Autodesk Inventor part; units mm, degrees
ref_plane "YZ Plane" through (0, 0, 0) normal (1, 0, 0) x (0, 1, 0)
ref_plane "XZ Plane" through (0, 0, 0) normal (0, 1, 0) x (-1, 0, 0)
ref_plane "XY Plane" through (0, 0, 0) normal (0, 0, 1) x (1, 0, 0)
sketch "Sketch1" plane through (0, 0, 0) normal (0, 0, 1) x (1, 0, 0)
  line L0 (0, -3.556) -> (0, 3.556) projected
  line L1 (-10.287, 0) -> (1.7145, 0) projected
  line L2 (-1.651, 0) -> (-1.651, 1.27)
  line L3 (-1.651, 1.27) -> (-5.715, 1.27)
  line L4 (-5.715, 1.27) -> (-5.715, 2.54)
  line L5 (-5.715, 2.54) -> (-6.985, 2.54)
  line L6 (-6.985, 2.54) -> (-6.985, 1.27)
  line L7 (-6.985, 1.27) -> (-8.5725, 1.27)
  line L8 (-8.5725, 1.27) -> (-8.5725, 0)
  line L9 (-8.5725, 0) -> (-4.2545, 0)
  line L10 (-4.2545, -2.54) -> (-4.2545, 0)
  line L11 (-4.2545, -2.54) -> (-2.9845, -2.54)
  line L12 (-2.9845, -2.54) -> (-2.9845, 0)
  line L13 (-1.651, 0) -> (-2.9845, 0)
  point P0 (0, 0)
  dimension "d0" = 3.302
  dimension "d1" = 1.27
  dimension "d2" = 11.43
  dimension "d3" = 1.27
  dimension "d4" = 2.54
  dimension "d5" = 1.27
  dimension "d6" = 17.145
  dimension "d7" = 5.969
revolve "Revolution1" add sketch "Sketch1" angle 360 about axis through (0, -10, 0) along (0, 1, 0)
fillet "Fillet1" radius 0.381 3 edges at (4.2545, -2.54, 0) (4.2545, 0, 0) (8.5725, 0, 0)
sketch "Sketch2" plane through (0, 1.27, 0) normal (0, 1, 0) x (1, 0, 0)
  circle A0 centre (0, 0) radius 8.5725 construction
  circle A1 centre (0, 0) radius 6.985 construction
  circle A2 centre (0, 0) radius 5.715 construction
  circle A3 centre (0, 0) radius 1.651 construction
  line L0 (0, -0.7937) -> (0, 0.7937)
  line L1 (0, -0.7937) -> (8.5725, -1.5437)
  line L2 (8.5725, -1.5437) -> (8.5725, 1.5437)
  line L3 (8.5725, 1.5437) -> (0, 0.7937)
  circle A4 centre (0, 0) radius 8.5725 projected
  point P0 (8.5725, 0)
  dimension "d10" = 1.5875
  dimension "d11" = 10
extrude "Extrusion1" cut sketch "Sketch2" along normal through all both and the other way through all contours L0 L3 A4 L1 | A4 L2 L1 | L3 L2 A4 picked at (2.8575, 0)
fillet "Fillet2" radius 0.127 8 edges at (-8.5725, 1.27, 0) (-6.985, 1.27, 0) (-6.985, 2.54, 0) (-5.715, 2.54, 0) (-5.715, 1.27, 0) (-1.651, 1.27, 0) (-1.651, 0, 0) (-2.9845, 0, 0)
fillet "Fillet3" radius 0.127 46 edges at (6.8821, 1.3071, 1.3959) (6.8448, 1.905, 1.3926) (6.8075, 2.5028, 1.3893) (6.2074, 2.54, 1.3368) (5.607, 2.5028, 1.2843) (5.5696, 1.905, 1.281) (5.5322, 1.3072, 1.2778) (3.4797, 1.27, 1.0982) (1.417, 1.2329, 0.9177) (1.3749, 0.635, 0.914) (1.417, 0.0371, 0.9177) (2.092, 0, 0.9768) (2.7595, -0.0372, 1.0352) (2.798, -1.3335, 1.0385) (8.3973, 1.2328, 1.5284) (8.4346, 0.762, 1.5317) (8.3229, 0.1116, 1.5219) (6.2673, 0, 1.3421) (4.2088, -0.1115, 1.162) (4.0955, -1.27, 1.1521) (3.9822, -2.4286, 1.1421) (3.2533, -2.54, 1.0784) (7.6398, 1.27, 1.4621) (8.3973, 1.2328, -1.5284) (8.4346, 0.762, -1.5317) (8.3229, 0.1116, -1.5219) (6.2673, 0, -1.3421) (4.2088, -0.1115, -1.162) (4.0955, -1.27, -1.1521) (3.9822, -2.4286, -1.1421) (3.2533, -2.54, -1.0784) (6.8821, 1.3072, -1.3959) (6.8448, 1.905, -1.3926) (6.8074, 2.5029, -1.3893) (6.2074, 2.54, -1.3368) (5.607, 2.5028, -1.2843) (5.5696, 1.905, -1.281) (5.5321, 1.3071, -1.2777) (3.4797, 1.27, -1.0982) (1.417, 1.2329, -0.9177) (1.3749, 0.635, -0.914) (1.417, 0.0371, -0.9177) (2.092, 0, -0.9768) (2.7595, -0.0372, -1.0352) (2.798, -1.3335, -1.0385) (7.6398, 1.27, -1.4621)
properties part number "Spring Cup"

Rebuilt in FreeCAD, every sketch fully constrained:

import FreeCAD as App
import Part
import Sketcher

V = App.Vector
Q = App.Units.Quantity


def edges_at(feature, points):
    """Names of the edges that pass closest to the given points."""
    edges = feature.Shape.Edges
    near = lambda p: min(range(len(edges)), key=lambda i: edges[i].distToShape(Part.Vertex(*p))[0])
    return sorted({f"Edge{near(p) + 1}" for p in points})

doc = App.newDocument("Part")
body = doc.addObject("PartDesign::Body", "Body")

sketch1 = body.newObject("Sketcher::SketchObject", "Sketch")
sketch1.AttachmentSupport = (doc.getObject("XY_Plane"), [""])
sketch1.MapMode = "FlatFace"
sketch1.addGeometry(Part.LineSegment(V(-8.6, 1.3, 0), V(-8.6, 0, 0)), False)
sketch1.addGeometry(Part.LineSegment(V(-8.6, 0, 0), V(-4.3, 0, 0)), False)
sketch1.addGeometry(Part.LineSegment(V(-4.3, 0, 0), V(-4.3, -2.5, 0)), False)
sketch1.addGeometry(Part.LineSegment(V(-4.3, -2.5, 0), V(-3, -2.5, 0)), False)
sketch1.addGeometry(Part.LineSegment(V(-3, -2.5, 0), V(-3, 0, 0)), False)
sketch1.addGeometry(Part.LineSegment(V(-3, 0, 0), V(-1.7, 0, 0)), False)
sketch1.addGeometry(Part.LineSegment(V(-1.7, 0, 0), V(-1.7, 1.3, 0)), False)
sketch1.addGeometry(Part.LineSegment(V(-1.7, 1.3, 0), V(-5.7, 1.3, 0)), False)
sketch1.addGeometry(Part.LineSegment(V(-5.7, 1.3, 0), V(-5.7, 2.5, 0)), False)
sketch1.addGeometry(Part.LineSegment(V(-5.7, 2.5, 0), V(-7, 2.5, 0)), False)
sketch1.addGeometry(Part.LineSegment(V(-7, 2.5, 0), V(-7, 1.3, 0)), False)
sketch1.addGeometry(Part.LineSegment(V(-7, 1.3, 0), V(-8.6, 1.3, 0)), False)
sketch1.addConstraint(Sketcher.Constraint("Coincident", 0, 2, 1, 1))
sketch1.addConstraint(Sketcher.Constraint("Coincident", 1, 2, 2, 1))
sketch1.addConstraint(Sketcher.Constraint("Coincident", 2, 2, 3, 1))
sketch1.addConstraint(Sketcher.Constraint("Coincident", 3, 2, 4, 1))
sketch1.addConstraint(Sketcher.Constraint("Coincident", 4, 2, 5, 1))
sketch1.addConstraint(Sketcher.Constraint("Coincident", 5, 2, 6, 1))
sketch1.addConstraint(Sketcher.Constraint("Coincident", 6, 2, 7, 1))
sketch1.addConstraint(Sketcher.Constraint("Coincident", 7, 2, 8, 1))
sketch1.addConstraint(Sketcher.Constraint("Coincident", 8, 2, 9, 1))
sketch1.addConstraint(Sketcher.Constraint("Coincident", 9, 2, 10, 1))
sketch1.addConstraint(Sketcher.Constraint("Coincident", 10, 2, 11, 1))
sketch1.addConstraint(Sketcher.Constraint("Coincident", 11, 2, 0, 1))
sketch1.addConstraint(Sketcher.Constraint("Vertical", 0))
sketch1.addConstraint(Sketcher.Constraint("Horizontal", 1))
sketch1.addConstraint(Sketcher.Constraint("Vertical", 2))
sketch1.addConstraint(Sketcher.Constraint("Horizontal", 3))
sketch1.addConstraint(Sketcher.Constraint("Vertical", 4))
sketch1.addConstraint(Sketcher.Constraint("Horizontal", 5))
sketch1.addConstraint(Sketcher.Constraint("Vertical", 6))
sketch1.addConstraint(Sketcher.Constraint("Horizontal", 7))
sketch1.addConstraint(Sketcher.Constraint("Vertical", 8))
sketch1.addConstraint(Sketcher.Constraint("Horizontal", 9))
sketch1.addConstraint(Sketcher.Constraint("Vertical", 10))
sketch1.addConstraint(Sketcher.Constraint("Horizontal", 11))
sketch1.addConstraint(Sketcher.Constraint("PointOnObject", 0, 2, -1))
sketch1.addConstraint(Sketcher.Constraint("PointOnObject", 4, 2, -1))
sketch1.addConstraint(Sketcher.Constraint("Horizontal", 7, 2, 10, 2))
sketch1.addConstraint(Sketcher.Constraint("Equal", 3, 9))
sketch1.addConstraint(Sketcher.Constraint("Equal", 9, 0))
sketch1.addConstraint(Sketcher.Constraint("Equal", 6, 8))
sketch1.addConstraint(Sketcher.Constraint("DistanceY", 2, 2, 2, 1, Q("0.1 in")))
sketch1.addConstraint(Sketcher.Constraint("DistanceX", 3, 1, 3, 2, Q("0.05 in")))
sketch1.addConstraint(Sketcher.Constraint("DistanceX", 1, 1, 1, 2, Q("0.17 in")))
sketch1.addConstraint(Sketcher.Constraint("DistanceX", 7, 2, 7, 1, Q("0.16 in")))
sketch1.addConstraint(Sketcher.Constraint("DistanceX", 11, 2, 11, 1, Q("0.0625 in")))
sketch1.addConstraint(Sketcher.Constraint("DistanceX", 5, 2, -1, 1, Q("0.065 in")))
revolution = body.newObject("PartDesign::Revolution", "Revolution")
revolution.Profile = sketch1
revolution.ReferenceAxis = (sketch1, ["V_Axis"])
revolution.Angle = 360
doc.recompute()

fillet = body.newObject("PartDesign::Fillet", "Fillet")
fillet.Base = (revolution, edges_at(revolution, [(4.255, -2.54, 0), (4.255, 0, 0), (8.572, 0, 0)]))
fillet.Radius = Q("0.015 in")

sketch2 = body.newObject("Sketcher::SketchObject", "Sketch001")
sketch2.AttachmentSupport = (doc.getObject("XZ_Plane"), [""])
sketch2.MapMode = "FlatFace"
sketch2.AttachmentOffset = App.Placement(V(0, 0, -0.05 * 25.4), App.Rotation())
sketch2.addGeometry(Part.LineSegment(V(0, -0.8, 0), V(0, 0.8, 0)), False)
sketch2.addGeometry(Part.LineSegment(V(0, 0.8, 0), V(8.6, 1.5, 0)), False)
sketch2.addGeometry(Part.LineSegment(V(8.6, 1.5, 0), V(8.6, -1.5, 0)), False)
sketch2.addGeometry(Part.LineSegment(V(8.6, -1.5, 0), V(0, -0.8, 0)), False)
sketch2.addConstraint(Sketcher.Constraint("Coincident", 0, 2, 1, 1))
sketch2.addConstraint(Sketcher.Constraint("Coincident", 1, 2, 2, 1))
sketch2.addConstraint(Sketcher.Constraint("Coincident", 2, 2, 3, 1))
sketch2.addConstraint(Sketcher.Constraint("Coincident", 3, 2, 0, 1))
sketch2.addConstraint(Sketcher.Constraint("Vertical", 0))
sketch2.addConstraint(Sketcher.Constraint("Vertical", 2))
sketch2.addConstraint(Sketcher.Constraint("Symmetric", 0, 2, 3, 2, -1, 1))
sketch2.addConstraint(Sketcher.Constraint("Equal", 1, 3))
sketch2.addConstraint(Sketcher.Constraint("DistanceY", 0, 1, 0, 2, Q("0.0625 in")))
sketch2.addConstraint(Sketcher.Constraint("Angle", 1, Q("5 deg")))
sketch2.addConstraint(Sketcher.Constraint("Distance", 1, Q("0.3388 in")))
pocket1 = body.newObject("PartDesign::Pocket", "Pocket")
pocket1.Profile = sketch2
pocket1.Type = "ThroughAll"
pocket1.Midplane = True
doc.recompute()

fillet2 = body.newObject("PartDesign::Fillet", "Fillet001")
fillet2.Base = (pocket1, edges_at(pocket1, [
    (-8.572, 1.27, 0),
    (-6.985, 1.27, 0),
    (-6.985, 2.54, 0),
    (-5.715, 2.54, 0),
    (-5.715, 1.27, 0),
    (-1.651, 1.27, 0),
    (-1.651, 0, 0),
    (-2.985, 0, 0),
]))
fillet2.Radius = Q("0.005 in")
doc.recompute()

fillet3 = body.newObject("PartDesign::Fillet", "Fillet002")
fillet3.Base = (fillet2, edges_at(fillet2, [
    (6.882, 1.307, 1.396),
    (6.845, 1.905, 1.393),
    (6.808, 2.503, 1.389),
    (6.207, 2.54, 1.337),
    (5.607, 2.503, 1.284),
    (5.57, 1.905, 1.281),
    (5.532, 1.307, 1.278),
    (3.48, 1.27, 1.098),
    (1.417, 1.233, 0.918),
    (1.375, 0.635, 0.914),
    (1.417, 0.037, 0.918),
    (2.092, 0, 0.977),
    (2.76, -0.037, 1.035),
    (2.798, -1.333, 1.038),
    (8.397, 1.233, 1.528),
    (8.435, 0.762, 1.532),
    (8.323, 0.112, 1.522),
    (6.267, 0, 1.342),
    (4.209, -0.112, 1.162),
    (4.096, -1.27, 1.152),
    (3.982, -2.429, 1.142),
    (3.253, -2.54, 1.078),
    (7.64, 1.27, 1.462),
    (8.397, 1.233, -1.528),
    (8.435, 0.762, -1.532),
    (8.323, 0.112, -1.522),
    (6.267, 0, -1.342),
    (4.209, -0.112, -1.162),
    (4.096, -1.27, -1.152),
    (3.982, -2.429, -1.142),
    (3.253, -2.54, -1.078),
    (6.882, 1.307, -1.396),
    (6.845, 1.905, -1.393),
    (6.807, 2.503, -1.389),
    (6.207, 2.54, -1.337),
    (5.607, 2.503, -1.284),
    (5.57, 1.905, -1.281),
    (5.532, 1.307, -1.278),
    (3.48, 1.27, -1.098),
    (1.417, 1.233, -0.918),
    (1.375, 0.635, -0.914),
    (1.417, 0.037, -0.918),
    (2.092, 0, -0.977),
    (2.76, -0.037, -1.035),
    (2.798, -1.333, -1.038),
    (7.64, 1.27, -1.462),
]))
fillet3.Radius = Q("0.005 in")

doc.recompute()
